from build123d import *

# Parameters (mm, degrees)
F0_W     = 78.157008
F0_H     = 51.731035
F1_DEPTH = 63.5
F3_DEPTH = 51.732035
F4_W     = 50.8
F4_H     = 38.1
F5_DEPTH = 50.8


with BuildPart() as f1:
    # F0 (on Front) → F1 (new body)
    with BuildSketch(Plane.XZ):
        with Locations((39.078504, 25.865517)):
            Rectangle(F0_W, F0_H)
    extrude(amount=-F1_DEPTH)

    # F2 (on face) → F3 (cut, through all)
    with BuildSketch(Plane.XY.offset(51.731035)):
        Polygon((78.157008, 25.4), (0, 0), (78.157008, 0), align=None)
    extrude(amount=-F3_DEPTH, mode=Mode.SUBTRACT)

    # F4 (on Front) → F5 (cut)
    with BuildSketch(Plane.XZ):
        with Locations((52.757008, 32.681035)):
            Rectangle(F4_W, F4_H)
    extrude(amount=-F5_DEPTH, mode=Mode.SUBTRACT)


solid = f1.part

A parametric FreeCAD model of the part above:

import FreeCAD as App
import Part
import Sketcher
Q = App.Units.Quantity


def add_polygon(sketch, points):
    """Adds a closed chain of lines whose ends are joined by coincident constraints."""
    first, n = sketch.GeometryCount, len(points)
    for a, b in zip(points, points[1:] + points[:1]):
        sketch.addGeometry(Part.LineSegment(App.Vector(*a, 0), App.Vector(*b, 0)), False)
    for i in range(n):
        sketch.addConstraint(Sketcher.Constraint("Coincident", first + i, 2, first + (i + 1) % n, 1))

doc = App.newDocument("Part")
body = doc.addObject("PartDesign::Body", "Body")

sketch1 = doc.addObject("Sketcher::SketchObject", "Sketch")
body.addObject(sketch1)
sketch1.AttachmentSupport = (doc.XZ_Plane, [""])
sketch1.MapMode = "FlatFace"
add_polygon(sketch1, [(0, 52), (0, 0), (78, 0), (78, 52)])
sketch1.addConstraint(Sketcher.Constraint("Vertical", 0))
sketch1.addConstraint(Sketcher.Constraint("Horizontal", 1))
sketch1.addConstraint(Sketcher.Constraint("Vertical", 2))
sketch1.addConstraint(Sketcher.Constraint("Horizontal", 3))
sketch1.addConstraint(Sketcher.Constraint("Coincident", 0, 2, -1, 1))
sketch1.addConstraint(Sketcher.Constraint("DistanceX", 1, 1, 1, 2, Q("78.157008 mm")))
sketch1.addConstraint(Sketcher.Constraint("DistanceY", 0, 2, 0, 1, Q("51.731035 mm")))
pad1 = doc.addObject("PartDesign::Pad", "Pad")
body.addObject(pad1)
pad1.Profile = sketch1
pad1.Length = Q("2.5 in")
pad1.Reversed = True

sketch2 = doc.addObject("Sketcher::SketchObject", "Sketch001")
body.addObject(sketch2)
sketch2.AttachmentSupport = (doc.XY_Plane, [""])
sketch2.MapMode = "FlatFace"
sketch2.AttachmentOffset = App.Placement(App.Vector(0, 0, 51.731035), App.Rotation())
add_polygon(sketch2, [(78, 25), (0, 0), (78, 0)])
sketch2.addConstraint(Sketcher.Constraint("Horizontal", 1))
sketch2.addConstraint(Sketcher.Constraint("Vertical", 2))
sketch2.addConstraint(Sketcher.Constraint("Coincident", 0, 2, -1, 1))
sketch2.addConstraint(Sketcher.Constraint("DistanceY", 2, 1, 2, 2, Q("1 in")))
sketch2.addConstraint(Sketcher.Constraint("DistanceX", 1, 1, 1, 2, Q("78.157008 mm")))
pocket1 = doc.addObject("PartDesign::Pocket", "Pocket")
body.addObject(pocket1)
pocket1.Profile = sketch2
pocket1.Type = "ThroughAll"

sketch3 = doc.addObject("Sketcher::SketchObject", "Sketch002")
body.addObject(sketch3)
sketch3.AttachmentSupport = (doc.XZ_Plane, [""])
sketch3.MapMode = "FlatFace"
add_polygon(sketch3, [(27, 52), (27, 14), (78, 14), (78, 52)])
sketch3.addConstraint(Sketcher.Constraint("Vertical", 0))
sketch3.addConstraint(Sketcher.Constraint("Horizontal", 1))
sketch3.addConstraint(Sketcher.Constraint("Vertical", 2))
sketch3.addConstraint(Sketcher.Constraint("Horizontal", 3))
sketch3.addConstraint(Sketcher.Constraint("DistanceX", 1, 1, 1, 2, Q("2 in")))
sketch3.addConstraint(Sketcher.Constraint("DistanceY", 0, 2, 0, 1, Q("1.5 in")))
sketch3.addConstraint(Sketcher.Constraint("DistanceX", -1, 1, 0, 2, Q("27.357008 mm")))
sketch3.addConstraint(Sketcher.Constraint("DistanceY", -1, 1, 0, 2, Q("13.631035 mm")))
pocket2 = doc.addObject("PartDesign::Pocket", "Pocket001")
body.addObject(pocket2)
pocket2.Profile = sketch3
pocket2.Length = Q("2 in")

doc.recompute()
